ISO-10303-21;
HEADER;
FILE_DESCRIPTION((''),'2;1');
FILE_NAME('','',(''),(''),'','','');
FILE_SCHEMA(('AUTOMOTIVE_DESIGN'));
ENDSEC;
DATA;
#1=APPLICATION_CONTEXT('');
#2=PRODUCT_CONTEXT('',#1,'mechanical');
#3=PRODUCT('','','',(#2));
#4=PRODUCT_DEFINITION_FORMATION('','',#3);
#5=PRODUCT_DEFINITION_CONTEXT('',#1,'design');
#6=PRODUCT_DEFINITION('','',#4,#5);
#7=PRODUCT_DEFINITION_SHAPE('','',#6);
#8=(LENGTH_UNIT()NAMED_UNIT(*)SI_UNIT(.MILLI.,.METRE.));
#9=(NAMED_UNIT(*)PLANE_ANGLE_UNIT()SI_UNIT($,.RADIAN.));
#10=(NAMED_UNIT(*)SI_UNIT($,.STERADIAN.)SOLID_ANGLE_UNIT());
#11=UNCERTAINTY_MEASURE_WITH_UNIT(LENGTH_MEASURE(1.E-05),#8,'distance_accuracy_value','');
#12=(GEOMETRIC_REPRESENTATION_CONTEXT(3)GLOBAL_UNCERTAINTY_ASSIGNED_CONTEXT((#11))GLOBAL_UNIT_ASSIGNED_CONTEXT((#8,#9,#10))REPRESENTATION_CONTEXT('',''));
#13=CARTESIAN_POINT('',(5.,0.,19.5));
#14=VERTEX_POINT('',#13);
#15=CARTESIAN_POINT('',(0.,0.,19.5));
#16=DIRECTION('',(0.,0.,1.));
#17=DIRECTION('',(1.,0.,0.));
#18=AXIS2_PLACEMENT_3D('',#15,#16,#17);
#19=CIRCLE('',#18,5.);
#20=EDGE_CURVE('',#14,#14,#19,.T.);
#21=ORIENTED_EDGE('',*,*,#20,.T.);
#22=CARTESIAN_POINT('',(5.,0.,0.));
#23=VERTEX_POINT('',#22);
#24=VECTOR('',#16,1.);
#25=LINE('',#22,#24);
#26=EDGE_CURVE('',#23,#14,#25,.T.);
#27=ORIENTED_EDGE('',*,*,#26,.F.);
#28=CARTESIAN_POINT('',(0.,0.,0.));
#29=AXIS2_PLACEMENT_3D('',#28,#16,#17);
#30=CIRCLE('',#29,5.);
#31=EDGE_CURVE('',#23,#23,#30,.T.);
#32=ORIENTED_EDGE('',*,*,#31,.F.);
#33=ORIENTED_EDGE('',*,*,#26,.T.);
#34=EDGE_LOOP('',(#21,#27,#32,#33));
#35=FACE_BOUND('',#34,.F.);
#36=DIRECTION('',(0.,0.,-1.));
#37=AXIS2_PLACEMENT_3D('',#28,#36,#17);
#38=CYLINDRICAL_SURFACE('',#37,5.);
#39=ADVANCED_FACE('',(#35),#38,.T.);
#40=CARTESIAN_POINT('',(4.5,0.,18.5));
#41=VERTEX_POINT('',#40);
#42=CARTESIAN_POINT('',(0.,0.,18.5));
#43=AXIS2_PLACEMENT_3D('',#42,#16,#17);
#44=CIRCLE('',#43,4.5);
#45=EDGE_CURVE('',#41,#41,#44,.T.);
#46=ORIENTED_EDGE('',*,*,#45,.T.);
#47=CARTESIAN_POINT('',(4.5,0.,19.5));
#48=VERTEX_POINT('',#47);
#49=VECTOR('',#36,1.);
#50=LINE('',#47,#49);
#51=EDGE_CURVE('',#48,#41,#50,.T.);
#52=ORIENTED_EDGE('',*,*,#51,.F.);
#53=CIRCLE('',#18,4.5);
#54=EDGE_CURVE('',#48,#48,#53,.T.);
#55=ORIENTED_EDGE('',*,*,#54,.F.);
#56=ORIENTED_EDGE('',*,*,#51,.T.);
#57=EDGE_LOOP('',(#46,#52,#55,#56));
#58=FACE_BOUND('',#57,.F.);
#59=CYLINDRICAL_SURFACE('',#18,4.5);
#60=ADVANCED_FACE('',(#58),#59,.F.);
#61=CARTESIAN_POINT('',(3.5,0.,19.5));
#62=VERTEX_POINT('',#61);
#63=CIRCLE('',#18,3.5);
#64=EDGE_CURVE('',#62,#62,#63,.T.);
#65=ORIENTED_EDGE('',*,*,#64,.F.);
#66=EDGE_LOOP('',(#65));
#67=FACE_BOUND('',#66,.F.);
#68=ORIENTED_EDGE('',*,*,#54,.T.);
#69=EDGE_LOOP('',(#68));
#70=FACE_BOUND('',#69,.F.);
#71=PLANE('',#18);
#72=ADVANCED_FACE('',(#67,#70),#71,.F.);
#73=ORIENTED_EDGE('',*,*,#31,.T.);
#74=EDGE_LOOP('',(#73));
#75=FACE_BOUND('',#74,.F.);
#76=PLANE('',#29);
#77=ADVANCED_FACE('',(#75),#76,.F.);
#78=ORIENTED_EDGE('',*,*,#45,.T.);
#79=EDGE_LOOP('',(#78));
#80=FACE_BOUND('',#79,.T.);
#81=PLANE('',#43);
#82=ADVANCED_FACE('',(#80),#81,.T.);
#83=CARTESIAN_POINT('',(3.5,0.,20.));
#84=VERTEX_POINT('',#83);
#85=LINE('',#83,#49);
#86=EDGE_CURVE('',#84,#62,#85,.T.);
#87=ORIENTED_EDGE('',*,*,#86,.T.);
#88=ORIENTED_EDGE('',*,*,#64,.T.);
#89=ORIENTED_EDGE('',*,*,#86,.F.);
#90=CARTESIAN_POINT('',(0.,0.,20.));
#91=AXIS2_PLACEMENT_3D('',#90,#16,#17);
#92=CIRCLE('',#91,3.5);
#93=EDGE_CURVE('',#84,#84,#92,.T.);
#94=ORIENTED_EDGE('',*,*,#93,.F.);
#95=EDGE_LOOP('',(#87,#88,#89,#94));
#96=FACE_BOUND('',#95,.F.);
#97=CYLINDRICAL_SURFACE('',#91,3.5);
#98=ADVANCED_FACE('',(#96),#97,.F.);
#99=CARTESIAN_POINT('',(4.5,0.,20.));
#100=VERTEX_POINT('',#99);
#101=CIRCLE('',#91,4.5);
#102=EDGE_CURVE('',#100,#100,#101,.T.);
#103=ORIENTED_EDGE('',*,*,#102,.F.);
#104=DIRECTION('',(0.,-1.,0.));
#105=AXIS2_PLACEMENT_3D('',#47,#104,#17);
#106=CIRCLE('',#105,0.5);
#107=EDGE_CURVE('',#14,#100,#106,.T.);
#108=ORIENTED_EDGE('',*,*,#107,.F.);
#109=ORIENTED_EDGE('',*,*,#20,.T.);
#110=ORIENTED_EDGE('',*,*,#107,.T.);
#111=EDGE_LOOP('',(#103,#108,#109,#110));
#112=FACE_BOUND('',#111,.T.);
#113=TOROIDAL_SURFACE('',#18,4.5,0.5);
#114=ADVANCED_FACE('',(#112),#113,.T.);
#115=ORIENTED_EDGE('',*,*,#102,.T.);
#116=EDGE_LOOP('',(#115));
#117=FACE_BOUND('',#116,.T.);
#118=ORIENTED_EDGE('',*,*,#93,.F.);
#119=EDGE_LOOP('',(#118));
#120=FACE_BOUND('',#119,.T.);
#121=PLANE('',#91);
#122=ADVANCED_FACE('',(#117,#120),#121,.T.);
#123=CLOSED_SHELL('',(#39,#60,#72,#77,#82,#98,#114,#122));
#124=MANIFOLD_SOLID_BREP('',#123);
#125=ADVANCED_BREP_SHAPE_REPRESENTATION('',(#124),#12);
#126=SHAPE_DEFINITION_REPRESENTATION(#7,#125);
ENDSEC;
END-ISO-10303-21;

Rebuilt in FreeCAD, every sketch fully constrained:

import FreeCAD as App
import Part
import Sketcher
from FreeCAD import Vector


def edges_at(feature, points):
    """Names of the edges that pass closest to the given points."""
    edges = feature.Shape.Edges
    near = lambda p: min(range(len(edges)), key=lambda i: edges[i].distToShape(Part.Vertex(*p))[0])
    return sorted({f"Edge{near(p) + 1}" for p in points})

doc = App.newDocument("Part")
body = doc.addObject("PartDesign::Body", "Body")

sketch1 = body.newObject("Sketcher::SketchObject", "Sketch")
sketch1.AttachmentSupport = (doc.getObject("XY_Plane"), [""])
sketch1.MapMode = "FlatFace"
sketch1.addGeometry(Part.Circle(Vector(0, 0, 0), Vector(0, 0, 1), 5), False)
sketch1.addConstraint([
    Sketcher.Constraint("Coincident", 0, 3, -1, 1),
    Sketcher.Constraint("Diameter", 0, 10.0),
])
pad1 = body.newObject("PartDesign::Pad", "Pad")
pad1.Profile = sketch1
pad1.Length = 20

sketch2 = body.newObject("Sketcher::SketchObject", "Sketch001")
sketch2.AttachmentSupport = (doc.getObject("XY_Plane"), [""])
sketch2.MapMode = "FlatFace"
sketch2.AttachmentOffset = App.Placement(Vector(0, 0, 20), App.Rotation())
sketch2.addGeometry(Part.Circle(Vector(0, 0, 0), Vector(0, 0, 1), 3.5), False)
sketch2.addConstraint([
    Sketcher.Constraint("Coincident", 0, 3, -1, 1),
    Sketcher.Constraint("Diameter", 0, 7.0),
])
pocket1 = body.newObject("PartDesign::Pocket", "Pocket")
pocket1.Profile = sketch2
pocket1.Length = 0.5

sketch3 = body.newObject("Sketcher::SketchObject", "Sketch002")
sketch3.AttachmentSupport = (doc.getObject("XY_Plane"), [""])
sketch3.MapMode = "FlatFace"
sketch3.AttachmentOffset = App.Placement(Vector(0, 0, 19.5), App.Rotation())
sketch3.addGeometry(Part.Circle(Vector(0, 0, 0), Vector(0, 0, 1), 4.5), False)
sketch3.addConstraint([
    Sketcher.Constraint("Coincident", 0, 3, -1, 1),
    Sketcher.Constraint("Diameter", 0, 9.0),
])
pocket2 = body.newObject("PartDesign::Pocket", "Pocket001")
pocket2.Profile = sketch3
pocket2.Length = 1
doc.recompute()

fillet = body.newObject("PartDesign::Fillet", "Fillet")
fillet.Base = (pocket2, edges_at(pocket2, [(-5, 0, 20)]))
fillet.Radius = 0.5

doc.recompute()
